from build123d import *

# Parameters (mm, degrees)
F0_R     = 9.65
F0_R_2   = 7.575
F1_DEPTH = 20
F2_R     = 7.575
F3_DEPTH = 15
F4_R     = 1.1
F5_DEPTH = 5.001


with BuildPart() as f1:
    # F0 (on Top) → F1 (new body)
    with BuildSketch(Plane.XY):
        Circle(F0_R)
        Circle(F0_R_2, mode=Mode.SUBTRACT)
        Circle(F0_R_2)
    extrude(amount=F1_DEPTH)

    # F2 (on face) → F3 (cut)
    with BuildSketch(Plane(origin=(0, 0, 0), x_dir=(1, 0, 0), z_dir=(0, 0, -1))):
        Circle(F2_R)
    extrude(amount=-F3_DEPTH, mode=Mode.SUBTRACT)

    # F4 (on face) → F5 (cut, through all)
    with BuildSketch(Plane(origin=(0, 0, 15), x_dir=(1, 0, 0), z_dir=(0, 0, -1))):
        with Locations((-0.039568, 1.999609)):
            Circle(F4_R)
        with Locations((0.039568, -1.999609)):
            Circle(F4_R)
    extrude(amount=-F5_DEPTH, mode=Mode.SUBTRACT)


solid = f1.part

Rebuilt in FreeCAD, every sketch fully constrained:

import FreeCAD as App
import Part
import Sketcher

V = App.Vector

doc = App.newDocument("Part")
params = doc.addObject("Spreadsheet::Sheet", "Params")
for row, (alias, value) in enumerate([
    ("sketch1_diameter", "19.3 mm"),
    ("pad1_length", "20 mm"),
    ("sketch2_diameter", "15.15 mm"),
    ("pocket1_length", "15 mm"),
    ("sketch3_diameter", "2.2 mm"),
], start=1):
    params.set(f"A{row}", alias)
    params.set(f"B{row}", "=" + value)
    params.setAlias(f"B{row}", alias)

body = doc.addObject("PartDesign::Body", "Body")

# Sketch on XY plane
sketch1 = body.newObject("Sketcher::SketchObject", "Sketch")
sketch1.AttachmentSupport = (doc.getObject("XY_Plane"), [""])
sketch1.MapMode = "FlatFace"
sketch1.addGeometry(Part.Circle(V(0, 0, 0), V(0, 0, 1), 10), False)
sketch1.addConstraint([
    Sketcher.Constraint("Coincident", 0, 3, -1, 1),
    Sketcher.Constraint("Diameter", 0, 19.3),
])
sketch1.setExpression("Constraints[1]", "Params.sketch1_diameter")
pad1 = body.newObject("PartDesign::Pad", "Pad")
pad1.Profile = sketch1
pad1.setExpression("Length", "Params.pad1_length")

# Sketch on XY plane
sketch2 = body.newObject("Sketcher::SketchObject", "Sketch001")
sketch2.AttachmentSupport = (doc.getObject("XY_Plane"), [""])
sketch2.MapMode = "FlatFace"
sketch2.addGeometry(Part.Circle(V(0, 0, 0), V(0, 0, 1), 8), False)
sketch2.addConstraint([
    Sketcher.Constraint("Coincident", 0, 3, -1, 1),
    Sketcher.Constraint("Diameter", 0, 15.15),
])
sketch2.setExpression("Constraints[1]", "Params.sketch2_diameter")
pocket1 = body.newObject("PartDesign::Pocket", "Pocket")
pocket1.Profile = sketch2
pocket1.setExpression("Length", "Params.pocket1_length")
pocket1.Reversed = True

# Sketch on XY plane
sketch3 = body.newObject("Sketcher::SketchObject", "Sketch002")
sketch3.AttachmentSupport = (doc.getObject("XY_Plane"), [""])
sketch3.MapMode = "FlatFace"
sketch3.AttachmentOffset = App.Placement(V(0, 0, 15), App.Rotation())
sketch3.addGeometry([
    Part.Circle(V(0, -2, 0), V(0, 0, 1), 1.1),
    Part.Circle(V(0, 2, 0), V(0, 0, 1), 1.1),
], False)
sketch3.addConstraint([
    Sketcher.Constraint("Equal", 0, 1),
    Sketcher.Constraint("Symmetric", 0, 3, 1, 3, -1, 1),
    Sketcher.Constraint("Diameter", 0, 2.2),
    Sketcher.Constraint("DistanceY", 0, 3, -1, 1, 1.999609),
    Sketcher.Constraint("DistanceX", 0, 3, -1, 1, 0.039568),
])
sketch3.setExpression("Constraints[2]", "Params.sketch3_diameter")
pocket2 = body.newObject("PartDesign::Pocket", "Pocket001")
pocket2.Profile = sketch3
pocket2.Type = "ThroughAll"
pocket2.Reversed = True

doc.recompute()
